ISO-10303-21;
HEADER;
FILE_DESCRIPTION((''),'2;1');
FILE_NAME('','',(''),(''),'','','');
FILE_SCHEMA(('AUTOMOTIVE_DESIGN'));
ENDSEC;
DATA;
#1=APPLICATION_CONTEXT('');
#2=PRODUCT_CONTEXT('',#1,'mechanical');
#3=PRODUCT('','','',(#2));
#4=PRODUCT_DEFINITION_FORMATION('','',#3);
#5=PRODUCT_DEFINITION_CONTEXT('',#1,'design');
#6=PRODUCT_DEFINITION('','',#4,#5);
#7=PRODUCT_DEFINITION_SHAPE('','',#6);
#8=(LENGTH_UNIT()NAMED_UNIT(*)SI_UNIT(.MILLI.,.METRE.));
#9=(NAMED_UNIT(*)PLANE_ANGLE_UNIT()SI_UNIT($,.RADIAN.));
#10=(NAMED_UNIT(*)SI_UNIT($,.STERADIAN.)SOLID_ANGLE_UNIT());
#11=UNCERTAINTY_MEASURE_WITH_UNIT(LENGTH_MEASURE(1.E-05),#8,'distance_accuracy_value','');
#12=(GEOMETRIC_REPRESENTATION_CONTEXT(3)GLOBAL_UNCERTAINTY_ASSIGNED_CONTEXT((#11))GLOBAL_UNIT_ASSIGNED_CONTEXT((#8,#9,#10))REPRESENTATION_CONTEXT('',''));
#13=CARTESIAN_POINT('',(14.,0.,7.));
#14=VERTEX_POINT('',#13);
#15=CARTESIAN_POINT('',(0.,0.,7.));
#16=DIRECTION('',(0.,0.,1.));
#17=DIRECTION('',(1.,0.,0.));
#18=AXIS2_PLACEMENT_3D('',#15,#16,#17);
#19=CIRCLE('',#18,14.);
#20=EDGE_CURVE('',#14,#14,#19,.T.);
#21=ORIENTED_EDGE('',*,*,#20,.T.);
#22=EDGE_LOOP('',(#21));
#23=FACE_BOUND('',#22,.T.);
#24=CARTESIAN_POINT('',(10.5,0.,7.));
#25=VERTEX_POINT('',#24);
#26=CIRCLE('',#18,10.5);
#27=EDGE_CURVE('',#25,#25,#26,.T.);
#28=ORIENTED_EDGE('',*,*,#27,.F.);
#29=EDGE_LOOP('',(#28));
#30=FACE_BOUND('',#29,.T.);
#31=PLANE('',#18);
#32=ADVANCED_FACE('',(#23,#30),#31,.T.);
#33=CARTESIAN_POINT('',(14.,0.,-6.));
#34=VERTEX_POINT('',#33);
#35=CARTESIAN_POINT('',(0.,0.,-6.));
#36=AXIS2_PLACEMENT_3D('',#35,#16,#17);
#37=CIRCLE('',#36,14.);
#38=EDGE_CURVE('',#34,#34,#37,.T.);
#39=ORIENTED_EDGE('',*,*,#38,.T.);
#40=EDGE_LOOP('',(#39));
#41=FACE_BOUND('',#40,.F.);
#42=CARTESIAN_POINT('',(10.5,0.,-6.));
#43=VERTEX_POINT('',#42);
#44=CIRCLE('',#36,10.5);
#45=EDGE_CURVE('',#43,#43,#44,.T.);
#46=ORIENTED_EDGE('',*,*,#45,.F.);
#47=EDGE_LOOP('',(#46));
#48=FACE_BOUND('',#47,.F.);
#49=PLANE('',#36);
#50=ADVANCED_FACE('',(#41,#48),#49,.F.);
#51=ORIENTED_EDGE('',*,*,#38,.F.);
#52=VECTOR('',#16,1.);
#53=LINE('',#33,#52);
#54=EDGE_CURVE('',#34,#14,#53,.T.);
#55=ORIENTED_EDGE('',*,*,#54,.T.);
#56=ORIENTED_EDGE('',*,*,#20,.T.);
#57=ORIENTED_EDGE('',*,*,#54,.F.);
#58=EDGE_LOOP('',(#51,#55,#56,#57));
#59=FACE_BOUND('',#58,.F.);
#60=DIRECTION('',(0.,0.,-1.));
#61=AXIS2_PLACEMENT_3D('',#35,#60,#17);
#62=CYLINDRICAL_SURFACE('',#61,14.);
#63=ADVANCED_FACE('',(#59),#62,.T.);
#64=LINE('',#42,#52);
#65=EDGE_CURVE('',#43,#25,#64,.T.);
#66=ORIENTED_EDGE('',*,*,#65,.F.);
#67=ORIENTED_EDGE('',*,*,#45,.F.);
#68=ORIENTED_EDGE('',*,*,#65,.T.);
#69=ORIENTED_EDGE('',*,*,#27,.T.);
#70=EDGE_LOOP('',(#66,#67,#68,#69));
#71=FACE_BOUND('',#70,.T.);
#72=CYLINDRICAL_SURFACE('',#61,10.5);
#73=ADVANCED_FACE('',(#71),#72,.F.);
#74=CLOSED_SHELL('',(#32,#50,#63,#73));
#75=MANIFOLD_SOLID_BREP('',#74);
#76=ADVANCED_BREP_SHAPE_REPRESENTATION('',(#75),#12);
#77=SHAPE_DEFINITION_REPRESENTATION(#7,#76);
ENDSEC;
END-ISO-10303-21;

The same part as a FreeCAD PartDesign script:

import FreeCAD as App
import Part
import Sketcher
Q = App.Units.Quantity

doc = App.newDocument("Part")
body = doc.addObject("PartDesign::Body", "Body")

sketch1 = body.newObject("Sketcher::SketchObject", "Sketch")
sketch1.AttachmentSupport = (doc.getObject("XY_Plane"), [""])
sketch1.MapMode = "FlatFace"
sketch1.AttachmentOffset = App.Placement(App.Vector(0, 0, -6), App.Rotation())
sketch1.addGeometry(Part.Circle(App.Vector(0, 0, 0), App.Vector(0, 0, 1), 10), False)
sketch1.addConstraint(Sketcher.Constraint("Coincident", 0, 3, -1, 1))
sketch1.addConstraint(Sketcher.Constraint("Diameter", 0, Q("21 mm")))
pad1 = body.newObject("PartDesign::Pad", "Pad")
pad1.Profile = sketch1
pad1.Length = 13
body2 = doc.addObject("PartDesign::Body", "Body001")

sketch2 = body2.newObject("Sketcher::SketchObject", "Sketch001")
sketch2.AttachmentSupport = (doc.getObject("XY_Plane001"), [""])
sketch2.MapMode = "FlatFace"
sketch2.AttachmentOffset = App.Placement(App.Vector(0, 0, -6), App.Rotation())
sketch2.addGeometry(Part.Circle(App.Vector(0, 0, 0), App.Vector(0, 0, 1), 14), False)
sketch2.addConstraint(Sketcher.Constraint("Coincident", 0, 3, -1, 1))
sketch2.addConstraint(Sketcher.Constraint("Diameter", 0, Q("28 mm")))
pad2 = body2.newObject("PartDesign::Pad", "Pad001")
pad2.Profile = sketch2
pad2.Length = 13
doc.recompute()

boolean = body2.newObject("PartDesign::Boolean", "Boolean")
boolean.Type = "Cut"
boolean.addObjects([body])

doc.recompute()
